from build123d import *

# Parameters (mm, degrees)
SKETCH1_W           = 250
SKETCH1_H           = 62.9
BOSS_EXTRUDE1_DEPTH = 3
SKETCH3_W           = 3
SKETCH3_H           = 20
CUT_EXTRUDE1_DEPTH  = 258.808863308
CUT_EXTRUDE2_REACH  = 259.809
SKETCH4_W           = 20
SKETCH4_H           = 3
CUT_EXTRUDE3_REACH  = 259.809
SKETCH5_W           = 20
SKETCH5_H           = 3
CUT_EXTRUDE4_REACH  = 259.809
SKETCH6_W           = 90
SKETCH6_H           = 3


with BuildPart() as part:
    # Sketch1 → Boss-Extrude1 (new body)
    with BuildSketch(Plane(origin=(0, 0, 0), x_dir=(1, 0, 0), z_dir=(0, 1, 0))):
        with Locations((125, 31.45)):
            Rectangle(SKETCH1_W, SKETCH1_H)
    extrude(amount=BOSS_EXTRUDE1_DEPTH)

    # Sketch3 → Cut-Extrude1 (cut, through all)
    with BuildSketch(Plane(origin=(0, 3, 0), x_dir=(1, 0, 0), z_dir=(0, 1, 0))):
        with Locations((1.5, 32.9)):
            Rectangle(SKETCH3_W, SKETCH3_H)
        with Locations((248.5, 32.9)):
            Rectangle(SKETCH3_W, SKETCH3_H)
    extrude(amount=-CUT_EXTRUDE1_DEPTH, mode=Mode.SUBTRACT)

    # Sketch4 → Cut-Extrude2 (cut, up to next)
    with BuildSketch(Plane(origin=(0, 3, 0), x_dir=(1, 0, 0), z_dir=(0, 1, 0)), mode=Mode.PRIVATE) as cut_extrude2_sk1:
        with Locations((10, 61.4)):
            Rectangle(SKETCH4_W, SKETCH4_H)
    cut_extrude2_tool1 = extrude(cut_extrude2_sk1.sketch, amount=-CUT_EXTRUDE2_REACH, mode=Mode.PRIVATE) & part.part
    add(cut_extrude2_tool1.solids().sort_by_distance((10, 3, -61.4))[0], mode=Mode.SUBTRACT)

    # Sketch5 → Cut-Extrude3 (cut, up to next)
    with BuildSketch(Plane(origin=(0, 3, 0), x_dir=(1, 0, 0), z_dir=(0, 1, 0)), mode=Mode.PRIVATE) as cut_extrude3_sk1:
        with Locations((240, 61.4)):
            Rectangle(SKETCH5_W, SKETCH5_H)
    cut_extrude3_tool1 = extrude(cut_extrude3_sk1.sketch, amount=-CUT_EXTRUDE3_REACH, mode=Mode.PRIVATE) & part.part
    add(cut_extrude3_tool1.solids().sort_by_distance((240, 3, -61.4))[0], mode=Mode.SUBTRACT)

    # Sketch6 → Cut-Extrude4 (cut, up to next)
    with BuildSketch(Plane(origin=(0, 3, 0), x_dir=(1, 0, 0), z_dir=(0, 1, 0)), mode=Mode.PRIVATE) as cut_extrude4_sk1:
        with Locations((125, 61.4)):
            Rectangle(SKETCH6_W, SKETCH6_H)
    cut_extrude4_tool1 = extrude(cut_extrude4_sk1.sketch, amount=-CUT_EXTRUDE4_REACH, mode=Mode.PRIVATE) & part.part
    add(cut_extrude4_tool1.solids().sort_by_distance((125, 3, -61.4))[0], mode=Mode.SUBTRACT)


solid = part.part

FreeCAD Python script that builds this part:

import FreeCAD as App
import Part
import Sketcher
Q = App.Units.Quantity

doc = App.newDocument("Part")
body = doc.addObject("PartDesign::Body", "Body")

# Sketch on XZ plane
sketch1 = body.newObject("Sketcher::SketchObject", "Sketch")
sketch1.AttachmentSupport = (doc.getObject("XZ_Plane"), [""])
sketch1.MapMode = "FlatFace"
sketch1.addGeometry([
    Part.LineSegment(App.Vector(0, -63, 0), App.Vector(0, 0, 0)),
    Part.LineSegment(App.Vector(0, 0, 0), App.Vector(250, 0, 0)),
    Part.LineSegment(App.Vector(250, 0, 0), App.Vector(250, -63, 0)),
    Part.LineSegment(App.Vector(250, -63, 0), App.Vector(0, -63, 0)),
], False)
sketch1.addConstraint([
    Sketcher.Constraint("Coincident", 0, 2, 1, 1),
    Sketcher.Constraint("Coincident", 1, 2, 2, 1),
    Sketcher.Constraint("Coincident", 2, 2, 3, 1),
    Sketcher.Constraint("Coincident", 3, 2, 0, 1),
    Sketcher.Constraint("Vertical", 0),
    Sketcher.Constraint("Horizontal", 1),
    Sketcher.Constraint("Vertical", 2),
    Sketcher.Constraint("Horizontal", 3),
    Sketcher.Constraint("Coincident", 0, 2, -1, 1),
    Sketcher.Constraint("DistanceX", 1, 1, 1, 2, Q("250 mm")),
    Sketcher.Constraint("DistanceY", 0, 1, 0, 2, Q("62.9 mm")),
])
pad1 = body.newObject("PartDesign::Pad", "Pad")
pad1.Profile = sketch1
pad1.Length = 3
pad1.Reversed = True

# Sketch on XZ plane
sketch2 = body.newObject("Sketcher::SketchObject", "Sketch001")
sketch2.AttachmentSupport = (doc.getObject("XZ_Plane"), [""])
sketch2.MapMode = "FlatFace"
sketch2.AttachmentOffset = App.Placement(App.Vector(0, 0, -3), App.Rotation())
sketch2.addGeometry([
    Part.LineSegment(App.Vector(0, -42.9, 0), App.Vector(0, -22.9, 0)),  # 0
    Part.LineSegment(App.Vector(0, -22.9, 0), App.Vector(3, -22.9, 0)),  # 1
    Part.LineSegment(App.Vector(3, -22.9, 0), App.Vector(3, -42.9, 0)),  # 2
    Part.LineSegment(App.Vector(3, -42.9, 0), App.Vector(0, -42.9, 0)),  # 3
    Part.LineSegment(App.Vector(247, -42.9, 0), App.Vector(247, -22.9, 0)),  # 4
    Part.LineSegment(App.Vector(247, -22.9, 0), App.Vector(250, -22.9, 0)),  # 5
    Part.LineSegment(App.Vector(250, -22.9, 0), App.Vector(250, -42.9, 0)),  # 6
    Part.LineSegment(App.Vector(250, -42.9, 0), App.Vector(247, -42.9, 0)),  # 7
], False)
sketch2.addConstraint([
    Sketcher.Constraint("Coincident", 0, 2, 1, 1),
    Sketcher.Constraint("Coincident", 1, 2, 2, 1),
    Sketcher.Constraint("Coincident", 2, 2, 3, 1),
    Sketcher.Constraint("Coincident", 3, 2, 0, 1),
    Sketcher.Constraint("Coincident", 4, 2, 5, 1),
    Sketcher.Constraint("Coincident", 5, 2, 6, 1),
    Sketcher.Constraint("Coincident", 6, 2, 7, 1),
    Sketcher.Constraint("Coincident", 7, 2, 4, 1),
    Sketcher.Constraint("Vertical", 0),
    Sketcher.Constraint("Horizontal", 1),
    Sketcher.Constraint("Vertical", 2),
    Sketcher.Constraint("Horizontal", 3),
    Sketcher.Constraint("Vertical", 4),
    Sketcher.Constraint("Horizontal", 5),
    Sketcher.Constraint("Vertical", 6),
    Sketcher.Constraint("Horizontal", 7),
    Sketcher.Constraint("PointOnObject", 0, 2, -2),
    Sketcher.Constraint("Horizontal", 1, 2, 4, 2),
    Sketcher.Constraint("Horizontal", 3, 2, 6, 2),
    Sketcher.Constraint("Equal", 3, 5),
    Sketcher.Constraint("DistanceX", 1, 1, 1, 2, Q("3 mm")),
    Sketcher.Constraint("DistanceY", 0, 1, 0, 2, Q("20 mm")),
    Sketcher.Constraint("DistanceX", -1, 1, 4, 2, Q("247 mm")),
    Sketcher.Constraint("DistanceY", 0, 2, -1, 1, Q("22.9 mm")),
])
pocket1 = body.newObject("PartDesign::Pocket", "Pocket")
pocket1.Profile = sketch2
pocket1.Type = "ThroughAll"
pocket1.Reversed = True

# Sketch on XZ plane
sketch3 = body.newObject("Sketcher::SketchObject", "Sketch002")
sketch3.AttachmentSupport = (doc.getObject("XZ_Plane"), [""])
sketch3.MapMode = "FlatFace"
sketch3.AttachmentOffset = App.Placement(App.Vector(0, 0, -3), App.Rotation())
sketch3.addGeometry([
    Part.LineSegment(App.Vector(0, -62.9, 0), App.Vector(0, -59.9, 0)),
    Part.LineSegment(App.Vector(0, -59.9, 0), App.Vector(20, -59.9, 0)),
    Part.LineSegment(App.Vector(20, -59.9, 0), App.Vector(20, -62.9, 0)),
    Part.LineSegment(App.Vector(20, -62.9, 0), App.Vector(0, -62.9, 0)),
], False)
sketch3.addConstraint([
    Sketcher.Constraint("Coincident", 0, 2, 1, 1),
    Sketcher.Constraint("Coincident", 1, 2, 2, 1),
    Sketcher.Constraint("Coincident", 2, 2, 3, 1),
    Sketcher.Constraint("Coincident", 3, 2, 0, 1),
    Sketcher.Constraint("Vertical", 0),
    Sketcher.Constraint("Horizontal", 1),
    Sketcher.Constraint("Vertical", 2),
    Sketcher.Constraint("Horizontal", 3),
    Sketcher.Constraint("PointOnObject", 0, 2, -2),
    Sketcher.Constraint("DistanceX", 1, 1, 1, 2, Q("20 mm")),
    Sketcher.Constraint("DistanceY", 0, 1, 0, 2, Q("3 mm")),
    Sketcher.Constraint("DistanceY", 0, 2, -1, 1, Q("59.9 mm")),
])
pocket2 = body.newObject("PartDesign::Pocket", "Pocket001")
pocket2.Profile = sketch3
pocket2.Type = "UpToFirst"
pocket2.Reversed = True

# Sketch on XZ plane
sketch4 = body.newObject("Sketcher::SketchObject", "Sketch003")
sketch4.AttachmentSupport = (doc.getObject("XZ_Plane"), [""])
sketch4.MapMode = "FlatFace"
sketch4.AttachmentOffset = App.Placement(App.Vector(0, 0, -3), App.Rotation())
sketch4.addGeometry([
    Part.LineSegment(App.Vector(230, -62.9, 0), App.Vector(230, -59.9, 0)),
    Part.LineSegment(App.Vector(230, -59.9, 0), App.Vector(250, -59.9, 0)),
    Part.LineSegment(App.Vector(250, -59.9, 0), App.Vector(250, -62.9, 0)),
    Part.LineSegment(App.Vector(250, -62.9, 0), App.Vector(230, -62.9, 0)),
], False)
sketch4.addConstraint([
    Sketcher.Constraint("Coincident", 0, 2, 1, 1),
    Sketcher.Constraint("Coincident", 1, 2, 2, 1),
    Sketcher.Constraint("Coincident", 2, 2, 3, 1),
    Sketcher.Constraint("Coincident", 3, 2, 0, 1),
    Sketcher.Constraint("Vertical", 0),
    Sketcher.Constraint("Horizontal", 1),
    Sketcher.Constraint("Vertical", 2),
    Sketcher.Constraint("Horizontal", 3),
    Sketcher.Constraint("DistanceX", 1, 1, 1, 2, Q("20 mm")),
    Sketcher.Constraint("DistanceY", 0, 1, 0, 2, Q("3 mm")),
    Sketcher.Constraint("DistanceX", -1, 1, 0, 2, Q("230 mm")),
    Sketcher.Constraint("DistanceY", 0, 2, -1, 1, Q("59.9 mm")),
])
pocket3 = body.newObject("PartDesign::Pocket", "Pocket002")
pocket3.Profile = sketch4
pocket3.Type = "UpToFirst"
pocket3.Reversed = True

# Sketch on XZ plane
sketch5 = body.newObject("Sketcher::SketchObject", "Sketch004")
sketch5.AttachmentSupport = (doc.getObject("XZ_Plane"), [""])
sketch5.MapMode = "FlatFace"
sketch5.AttachmentOffset = App.Placement(App.Vector(0, 0, -3), App.Rotation())
sketch5.addGeometry([
    Part.LineSegment(App.Vector(80, -62.9, 0), App.Vector(80, -59.9, 0)),
    Part.LineSegment(App.Vector(80, -59.9, 0), App.Vector(170, -59.9, 0)),
    Part.LineSegment(App.Vector(170, -59.9, 0), App.Vector(170, -62.9, 0)),
    Part.LineSegment(App.Vector(170, -62.9, 0), App.Vector(80, -62.9, 0)),
], False)
sketch5.addConstraint([
    Sketcher.Constraint("Coincident", 0, 2, 1, 1),
    Sketcher.Constraint("Coincident", 1, 2, 2, 1),
    Sketcher.Constraint("Coincident", 2, 2, 3, 1),
    Sketcher.Constraint("Coincident", 3, 2, 0, 1),
    Sketcher.Constraint("Vertical", 0),
    Sketcher.Constraint("Horizontal", 1),
    Sketcher.Constraint("Vertical", 2),
    Sketcher.Constraint("Horizontal", 3),
    Sketcher.Constraint("DistanceX", 1, 1, 1, 2, Q("90 mm")),
    Sketcher.Constraint("DistanceY", 0, 1, 0, 2, Q("3 mm")),
    Sketcher.Constraint("DistanceX", -1, 1, 0, 2, Q("80 mm")),
    Sketcher.Constraint("DistanceY", 0, 2, -1, 1, Q("59.9 mm")),
])
pocket4 = body.newObject("PartDesign::Pocket", "Pocket003")
pocket4.Profile = sketch5
pocket4.Type = "UpToFirst"
pocket4.Reversed = True

doc.recompute()
